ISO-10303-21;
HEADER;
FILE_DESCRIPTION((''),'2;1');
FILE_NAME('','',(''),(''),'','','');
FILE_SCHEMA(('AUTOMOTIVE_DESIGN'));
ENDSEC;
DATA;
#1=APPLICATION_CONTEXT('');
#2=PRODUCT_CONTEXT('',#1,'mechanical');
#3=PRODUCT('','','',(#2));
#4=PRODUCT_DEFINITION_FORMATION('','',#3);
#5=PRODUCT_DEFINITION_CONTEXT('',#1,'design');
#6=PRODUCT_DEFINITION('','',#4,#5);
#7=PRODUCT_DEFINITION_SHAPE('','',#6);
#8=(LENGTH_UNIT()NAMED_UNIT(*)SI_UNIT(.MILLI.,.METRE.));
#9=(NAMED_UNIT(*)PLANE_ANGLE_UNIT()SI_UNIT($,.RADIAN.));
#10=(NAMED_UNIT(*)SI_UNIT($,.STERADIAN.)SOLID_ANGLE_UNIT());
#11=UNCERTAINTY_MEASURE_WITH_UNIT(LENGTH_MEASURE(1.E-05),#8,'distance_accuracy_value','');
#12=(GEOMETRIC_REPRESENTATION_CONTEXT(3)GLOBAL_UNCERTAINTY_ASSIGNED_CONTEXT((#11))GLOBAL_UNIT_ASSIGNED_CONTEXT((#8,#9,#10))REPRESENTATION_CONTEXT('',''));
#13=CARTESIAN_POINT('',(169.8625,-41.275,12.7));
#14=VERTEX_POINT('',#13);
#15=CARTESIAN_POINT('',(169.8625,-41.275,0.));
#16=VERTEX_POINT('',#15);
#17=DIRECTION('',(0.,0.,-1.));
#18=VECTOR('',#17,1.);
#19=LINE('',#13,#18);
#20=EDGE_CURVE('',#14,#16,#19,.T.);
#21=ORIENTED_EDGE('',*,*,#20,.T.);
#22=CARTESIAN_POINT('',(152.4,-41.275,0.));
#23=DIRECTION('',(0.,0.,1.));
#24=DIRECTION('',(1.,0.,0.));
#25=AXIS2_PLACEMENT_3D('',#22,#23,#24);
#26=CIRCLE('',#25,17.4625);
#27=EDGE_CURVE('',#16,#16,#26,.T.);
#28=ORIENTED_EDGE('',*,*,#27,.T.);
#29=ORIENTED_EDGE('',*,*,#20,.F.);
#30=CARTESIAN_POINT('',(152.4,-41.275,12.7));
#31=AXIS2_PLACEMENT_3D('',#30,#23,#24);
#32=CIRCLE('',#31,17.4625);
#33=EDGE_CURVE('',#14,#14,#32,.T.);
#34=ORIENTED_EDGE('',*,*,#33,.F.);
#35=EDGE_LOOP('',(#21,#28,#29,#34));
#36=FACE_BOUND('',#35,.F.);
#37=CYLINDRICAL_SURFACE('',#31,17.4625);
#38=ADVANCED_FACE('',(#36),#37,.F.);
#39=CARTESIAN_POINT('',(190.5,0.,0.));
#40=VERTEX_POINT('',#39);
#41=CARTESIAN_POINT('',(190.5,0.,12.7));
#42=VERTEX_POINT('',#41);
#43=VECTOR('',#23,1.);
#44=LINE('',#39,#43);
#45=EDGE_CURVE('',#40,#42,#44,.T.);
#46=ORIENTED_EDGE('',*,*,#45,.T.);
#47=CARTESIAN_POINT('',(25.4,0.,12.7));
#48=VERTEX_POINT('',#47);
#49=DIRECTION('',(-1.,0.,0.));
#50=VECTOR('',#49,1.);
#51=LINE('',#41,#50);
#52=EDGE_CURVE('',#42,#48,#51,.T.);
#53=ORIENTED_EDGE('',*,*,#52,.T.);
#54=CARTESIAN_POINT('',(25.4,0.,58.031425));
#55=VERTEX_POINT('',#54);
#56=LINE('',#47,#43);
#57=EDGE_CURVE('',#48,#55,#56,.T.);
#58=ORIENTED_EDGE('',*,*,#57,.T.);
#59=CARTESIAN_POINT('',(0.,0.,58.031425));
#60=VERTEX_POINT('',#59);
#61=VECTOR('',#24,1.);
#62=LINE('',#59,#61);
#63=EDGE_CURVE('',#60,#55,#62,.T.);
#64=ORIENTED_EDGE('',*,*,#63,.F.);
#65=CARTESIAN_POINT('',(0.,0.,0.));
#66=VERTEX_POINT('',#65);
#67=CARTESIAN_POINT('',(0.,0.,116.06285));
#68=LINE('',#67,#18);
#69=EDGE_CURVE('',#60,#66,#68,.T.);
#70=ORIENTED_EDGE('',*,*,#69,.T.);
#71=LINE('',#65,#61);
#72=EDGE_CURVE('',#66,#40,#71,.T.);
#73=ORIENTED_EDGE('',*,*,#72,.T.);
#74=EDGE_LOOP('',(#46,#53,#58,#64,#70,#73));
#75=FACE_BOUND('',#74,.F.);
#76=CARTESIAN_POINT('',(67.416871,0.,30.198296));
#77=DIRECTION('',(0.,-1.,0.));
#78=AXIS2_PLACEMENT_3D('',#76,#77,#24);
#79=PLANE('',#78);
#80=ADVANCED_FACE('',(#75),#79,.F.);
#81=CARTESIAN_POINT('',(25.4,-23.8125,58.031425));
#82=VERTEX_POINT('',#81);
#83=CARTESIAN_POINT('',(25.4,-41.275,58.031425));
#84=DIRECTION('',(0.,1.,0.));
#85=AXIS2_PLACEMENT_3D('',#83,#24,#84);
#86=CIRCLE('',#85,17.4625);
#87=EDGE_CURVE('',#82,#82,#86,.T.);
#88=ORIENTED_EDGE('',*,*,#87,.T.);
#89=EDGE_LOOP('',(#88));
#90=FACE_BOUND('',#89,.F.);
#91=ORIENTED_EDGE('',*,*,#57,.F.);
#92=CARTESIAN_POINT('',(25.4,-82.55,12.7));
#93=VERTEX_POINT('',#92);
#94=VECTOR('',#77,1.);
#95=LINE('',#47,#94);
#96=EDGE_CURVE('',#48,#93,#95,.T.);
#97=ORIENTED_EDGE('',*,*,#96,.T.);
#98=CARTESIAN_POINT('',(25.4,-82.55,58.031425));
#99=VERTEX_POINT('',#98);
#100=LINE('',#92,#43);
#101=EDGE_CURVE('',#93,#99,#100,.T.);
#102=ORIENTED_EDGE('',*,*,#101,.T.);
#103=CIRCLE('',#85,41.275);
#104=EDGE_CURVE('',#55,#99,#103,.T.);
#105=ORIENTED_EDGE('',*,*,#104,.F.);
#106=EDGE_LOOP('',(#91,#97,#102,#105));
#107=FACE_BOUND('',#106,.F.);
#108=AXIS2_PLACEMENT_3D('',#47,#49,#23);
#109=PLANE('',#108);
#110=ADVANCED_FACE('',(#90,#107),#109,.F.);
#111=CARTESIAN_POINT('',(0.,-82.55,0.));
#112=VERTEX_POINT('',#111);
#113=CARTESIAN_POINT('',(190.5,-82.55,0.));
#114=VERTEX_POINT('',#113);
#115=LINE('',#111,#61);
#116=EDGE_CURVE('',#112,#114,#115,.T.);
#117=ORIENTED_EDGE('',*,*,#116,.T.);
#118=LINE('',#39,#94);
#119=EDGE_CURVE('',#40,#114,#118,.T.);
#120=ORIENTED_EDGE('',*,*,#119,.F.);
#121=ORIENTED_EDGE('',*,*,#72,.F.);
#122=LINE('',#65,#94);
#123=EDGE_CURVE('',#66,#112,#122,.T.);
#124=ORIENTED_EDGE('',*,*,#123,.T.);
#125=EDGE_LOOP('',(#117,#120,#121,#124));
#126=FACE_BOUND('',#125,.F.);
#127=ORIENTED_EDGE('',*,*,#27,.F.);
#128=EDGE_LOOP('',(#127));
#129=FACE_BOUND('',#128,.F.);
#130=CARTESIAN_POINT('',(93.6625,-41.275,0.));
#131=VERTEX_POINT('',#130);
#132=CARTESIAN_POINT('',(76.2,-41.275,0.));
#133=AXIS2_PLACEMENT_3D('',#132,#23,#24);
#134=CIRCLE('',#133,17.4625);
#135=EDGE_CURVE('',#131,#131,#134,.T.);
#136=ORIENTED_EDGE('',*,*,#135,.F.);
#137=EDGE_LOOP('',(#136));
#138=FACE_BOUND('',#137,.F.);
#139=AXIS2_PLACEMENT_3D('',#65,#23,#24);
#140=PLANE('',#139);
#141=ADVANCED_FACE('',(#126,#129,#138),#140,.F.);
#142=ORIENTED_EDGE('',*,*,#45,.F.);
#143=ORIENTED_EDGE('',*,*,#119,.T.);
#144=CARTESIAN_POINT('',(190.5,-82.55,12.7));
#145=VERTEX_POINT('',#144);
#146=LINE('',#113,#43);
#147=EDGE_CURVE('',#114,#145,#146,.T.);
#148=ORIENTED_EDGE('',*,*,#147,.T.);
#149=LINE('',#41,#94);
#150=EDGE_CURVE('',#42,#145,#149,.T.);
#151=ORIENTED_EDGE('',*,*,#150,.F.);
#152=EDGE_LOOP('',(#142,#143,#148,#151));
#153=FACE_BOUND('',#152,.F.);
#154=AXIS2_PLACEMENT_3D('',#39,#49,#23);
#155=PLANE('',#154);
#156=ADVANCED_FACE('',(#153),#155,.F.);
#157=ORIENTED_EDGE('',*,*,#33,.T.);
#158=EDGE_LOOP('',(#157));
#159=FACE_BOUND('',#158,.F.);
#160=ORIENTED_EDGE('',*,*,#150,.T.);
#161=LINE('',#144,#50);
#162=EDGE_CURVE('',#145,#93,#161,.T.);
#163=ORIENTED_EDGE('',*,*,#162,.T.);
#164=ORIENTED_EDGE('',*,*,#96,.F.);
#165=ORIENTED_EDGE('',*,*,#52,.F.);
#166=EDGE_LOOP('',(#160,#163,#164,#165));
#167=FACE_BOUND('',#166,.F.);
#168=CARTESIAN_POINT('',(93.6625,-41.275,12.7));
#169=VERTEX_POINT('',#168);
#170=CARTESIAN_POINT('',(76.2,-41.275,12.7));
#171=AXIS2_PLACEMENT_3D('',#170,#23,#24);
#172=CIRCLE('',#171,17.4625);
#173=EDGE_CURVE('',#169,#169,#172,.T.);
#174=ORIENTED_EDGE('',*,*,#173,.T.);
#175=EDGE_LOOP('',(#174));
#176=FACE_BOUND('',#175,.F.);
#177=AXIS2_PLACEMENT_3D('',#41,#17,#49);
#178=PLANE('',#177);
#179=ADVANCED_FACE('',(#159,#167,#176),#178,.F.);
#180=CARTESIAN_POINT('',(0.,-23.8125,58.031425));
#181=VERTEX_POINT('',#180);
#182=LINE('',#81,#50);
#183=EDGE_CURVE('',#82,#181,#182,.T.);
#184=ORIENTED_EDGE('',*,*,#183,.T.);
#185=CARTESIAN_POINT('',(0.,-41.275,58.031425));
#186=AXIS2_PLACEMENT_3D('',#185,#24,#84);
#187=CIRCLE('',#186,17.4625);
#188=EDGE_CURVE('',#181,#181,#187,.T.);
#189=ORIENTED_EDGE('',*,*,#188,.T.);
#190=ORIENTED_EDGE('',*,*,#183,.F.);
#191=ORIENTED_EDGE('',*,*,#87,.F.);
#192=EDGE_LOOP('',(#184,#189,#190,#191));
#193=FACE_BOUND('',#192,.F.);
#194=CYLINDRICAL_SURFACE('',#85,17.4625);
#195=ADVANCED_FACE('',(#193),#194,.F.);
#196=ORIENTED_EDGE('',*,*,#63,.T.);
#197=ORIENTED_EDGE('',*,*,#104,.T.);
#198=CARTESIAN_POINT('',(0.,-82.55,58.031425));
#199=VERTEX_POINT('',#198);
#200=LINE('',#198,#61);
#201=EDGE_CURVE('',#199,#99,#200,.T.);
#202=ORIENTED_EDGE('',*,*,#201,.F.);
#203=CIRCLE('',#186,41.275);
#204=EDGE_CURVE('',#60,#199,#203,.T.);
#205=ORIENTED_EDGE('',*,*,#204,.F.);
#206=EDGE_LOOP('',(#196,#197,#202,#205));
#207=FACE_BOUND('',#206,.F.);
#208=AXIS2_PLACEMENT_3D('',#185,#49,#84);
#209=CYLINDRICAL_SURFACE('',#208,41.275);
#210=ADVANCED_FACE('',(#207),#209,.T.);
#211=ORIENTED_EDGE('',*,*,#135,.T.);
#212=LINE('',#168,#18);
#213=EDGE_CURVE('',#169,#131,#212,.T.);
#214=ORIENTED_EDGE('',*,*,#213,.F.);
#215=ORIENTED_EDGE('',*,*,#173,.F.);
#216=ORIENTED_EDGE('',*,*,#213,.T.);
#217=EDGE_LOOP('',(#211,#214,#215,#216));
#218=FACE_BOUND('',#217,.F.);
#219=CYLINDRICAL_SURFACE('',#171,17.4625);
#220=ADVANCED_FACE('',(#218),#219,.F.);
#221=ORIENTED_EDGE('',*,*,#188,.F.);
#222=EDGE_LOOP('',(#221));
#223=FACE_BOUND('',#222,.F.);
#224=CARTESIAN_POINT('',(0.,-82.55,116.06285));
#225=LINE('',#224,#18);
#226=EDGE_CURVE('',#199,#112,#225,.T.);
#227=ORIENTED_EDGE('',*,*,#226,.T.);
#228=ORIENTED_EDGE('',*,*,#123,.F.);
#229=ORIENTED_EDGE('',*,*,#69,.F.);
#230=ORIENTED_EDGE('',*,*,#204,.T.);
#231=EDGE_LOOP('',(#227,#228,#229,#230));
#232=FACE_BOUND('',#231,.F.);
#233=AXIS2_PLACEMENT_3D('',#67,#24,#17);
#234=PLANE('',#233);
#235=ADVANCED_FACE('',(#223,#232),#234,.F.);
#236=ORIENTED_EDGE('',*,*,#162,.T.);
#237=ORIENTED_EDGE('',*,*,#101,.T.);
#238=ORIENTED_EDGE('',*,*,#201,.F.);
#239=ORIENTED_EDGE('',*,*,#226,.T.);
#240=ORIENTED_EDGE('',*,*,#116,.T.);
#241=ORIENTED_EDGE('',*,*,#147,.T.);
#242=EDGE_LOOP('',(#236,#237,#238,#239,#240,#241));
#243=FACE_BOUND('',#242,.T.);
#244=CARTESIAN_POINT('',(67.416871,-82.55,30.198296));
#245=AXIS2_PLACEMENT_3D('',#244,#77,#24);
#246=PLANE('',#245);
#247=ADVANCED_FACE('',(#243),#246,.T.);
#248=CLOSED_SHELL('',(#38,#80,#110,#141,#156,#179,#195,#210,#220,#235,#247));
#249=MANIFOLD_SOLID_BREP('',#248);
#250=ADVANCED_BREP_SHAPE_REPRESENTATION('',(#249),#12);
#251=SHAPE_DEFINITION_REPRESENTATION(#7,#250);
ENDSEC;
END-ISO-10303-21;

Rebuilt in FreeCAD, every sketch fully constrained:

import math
import FreeCAD as App
import Part
import Sketcher
from FreeCAD import Vector
Q = App.Units.Quantity


def add_polygon(sketch, points):
    """Adds a closed chain of lines whose ends are joined by coincident constraints."""
    first, n = sketch.GeometryCount, len(points)
    for a, b in zip(points, points[1:] + points[:1]):
        sketch.addGeometry(Part.LineSegment(App.Vector(*a, 0), App.Vector(*b, 0)), False)
    for i in range(n):
        sketch.addConstraint(Sketcher.Constraint("Coincident", first + i, 2, first + (i + 1) % n, 1))

doc = App.newDocument("Part")
params = doc.addObject("Spreadsheet::Sheet", "Params")
for row, (alias, value) in enumerate([
    ("sketch1_width", "1 in"),
    ("sketch1_width2", "7.5 in"),
    ("sketch1_height", "0.5 in"),
    ("pad1_length", "3.25 in"),
    ("sketch2_diameter", "1.375 in"),
    ("pocket1_length", "0.5 in"),
    ("sketch3_radius", "1.625 in"),
    ("pocket2_length", "1 in"),
    ("sketch4_diameter", "1.375 in"),
    ("pocket3_length", "1 in"),
], start=1):
    params.set(f"A{row}", alias)
    params.set(f"B{row}", "=" + value)
    params.setAlias(f"B{row}", alias)

body = doc.addObject("PartDesign::Body", "Body")

# Sketch on XZ plane
sketch1 = body.newObject("Sketcher::SketchObject", "Sketch")
sketch1.AttachmentSupport = (doc.getObject("XZ_Plane"), [""])
sketch1.MapMode = "FlatFace"
add_polygon(sketch1, [(0, 116), (0, 0), (190, 0), (190, 13), (25, 13), (25, 116)])  # lines 0-5
sketch1.addConstraint([
    Sketcher.Constraint("Vertical", 0),
    Sketcher.Constraint("Horizontal", 1),
    Sketcher.Constraint("Vertical", 2),
    Sketcher.Constraint("Horizontal", 3),
    Sketcher.Constraint("Vertical", 4),
    Sketcher.Constraint("Horizontal", 5),
    Sketcher.Constraint("Coincident", 0, 2, -1, 1),
    Sketcher.Constraint("DistanceX", 5, 2, 5, 1, Q("1 in")),
    Sketcher.Constraint("DistanceX", 1, 1, 1, 2, Q("7.5 in")),
    Sketcher.Constraint("DistanceY", 2, 1, 2, 2, Q("0.5 in")),
    Sketcher.Constraint("DistanceY", 0, 2, 0, 1, 116.06285),
])
sketch1.setExpression("Constraints[13]", "Params.sketch1_width")
sketch1.setExpression("Constraints[14]", "Params.sketch1_width2")
sketch1.setExpression("Constraints[15]", "Params.sketch1_height")
pad1 = body.newObject("PartDesign::Pad", "Pad")
pad1.Profile = sketch1
pad1.setExpression("Length", "Params.pad1_length")

# Sketch on XY plane
sketch2 = body.newObject("Sketcher::SketchObject", "Sketch001")
sketch2.AttachmentSupport = (doc.getObject("XY_Plane"), [""])
sketch2.MapMode = "FlatFace"
sketch2.AttachmentOffset = App.Placement(Vector(0, 0, 0.5 * 25.4), App.Rotation())
sketch2.addGeometry([
    Part.Circle(Vector(76, -41, 0), Vector(0, 0, 1), 17),
    Part.Circle(Vector(152, -41, 0), Vector(0, 0, 1), 17),
], False)
sketch2.addConstraint([
    Sketcher.Constraint("Equal", 0, 1),
    Sketcher.Constraint("Horizontal", 0, 3, 1, 3),
    Sketcher.Constraint("Diameter", 0, Q("1.375 in")),
    Sketcher.Constraint("DistanceX", -1, 1, 0, 3, Q("3 in")),
    Sketcher.Constraint("DistanceX", -1, 1, 1, 3, Q("6 in")),
    Sketcher.Constraint("DistanceY", 0, 3, -1, 1, Q("1.625 in")),
])
sketch2.setExpression("Constraints[2]", "Params.sketch2_diameter")
pocket1 = body.newObject("PartDesign::Pocket", "Pocket")
pocket1.Profile = sketch2
pocket1.setExpression("Length", "Params.pocket1_length")

# Sketch on YZ plane
sketch3 = body.newObject("Sketcher::SketchObject", "Sketch002")
sketch3.AttachmentSupport = (doc.getObject("YZ_Plane"), [""])
sketch3.MapMode = "FlatFace"
sketch3.addGeometry([
    Part.ArcOfCircle(Part.Circle(Vector(-41, 58, 0), Vector(0, 0, 1), 41), math.radians(0), math.radians(180)),
    Part.LineSegment(Vector(-83, 58, 0), Vector(-83, 116, 0)),
    Part.LineSegment(Vector(-83, 116, 0), Vector(0, 116, 0)),
    Part.LineSegment(Vector(0, 116, 0), Vector(0, 58, 0)),
], False)
sketch3.addConstraint([
    Sketcher.Constraint("Tangent", 0, 2, 1, 1),
    Sketcher.Constraint("Coincident", 1, 2, 2, 1),
    Sketcher.Constraint("Coincident", 2, 2, 3, 1),
    Sketcher.Constraint("Tangent", 3, 2, 0, 1),
    Sketcher.Constraint("Vertical", 1),
    Sketcher.Constraint("Horizontal", 2),
    Sketcher.Constraint("Vertical", 3),
    Sketcher.Constraint("PointOnObject", 2, 2, -2),
    Sketcher.Constraint("Radius", 0, Q("1.625 in")),
    Sketcher.Constraint("DistanceY", 1, 1, 1, 2, 58.031425),
    Sketcher.Constraint("DistanceY", -1, 1, 1, 2, 116.06285),
])
sketch3.setExpression("Constraints[8]", "Params.sketch3_radius")
pocket2 = body.newObject("PartDesign::Pocket", "Pocket001")
pocket2.Profile = sketch3
pocket2.setExpression("Length", "Params.pocket2_length")
pocket2.Reversed = True

# Sketch on YZ plane
sketch4 = body.newObject("Sketcher::SketchObject", "Sketch003")
sketch4.AttachmentSupport = (doc.getObject("YZ_Plane"), [""])
sketch4.MapMode = "FlatFace"
sketch4.AttachmentOffset = App.Placement(Vector(0, 0, 1 * 25.4), App.Rotation())
sketch4.addGeometry(Part.Circle(Vector(-41, 58, 0), Vector(0, 0, 1), 17), False)
sketch4.addConstraint([
    Sketcher.Constraint("Diameter", 0, Q("1.375 in")),
    Sketcher.Constraint("DistanceX", 0, 3, -1, 1, Q("1.625 in")),
    Sketcher.Constraint("DistanceY", -1, 1, 0, 3, 58.031425),
])
sketch4.setExpression("Constraints[0]", "Params.sketch4_diameter")
pocket3 = body.newObject("PartDesign::Pocket", "Pocket002")
pocket3.Profile = sketch4
pocket3.setExpression("Length", "Params.pocket3_length")

doc.recompute()
